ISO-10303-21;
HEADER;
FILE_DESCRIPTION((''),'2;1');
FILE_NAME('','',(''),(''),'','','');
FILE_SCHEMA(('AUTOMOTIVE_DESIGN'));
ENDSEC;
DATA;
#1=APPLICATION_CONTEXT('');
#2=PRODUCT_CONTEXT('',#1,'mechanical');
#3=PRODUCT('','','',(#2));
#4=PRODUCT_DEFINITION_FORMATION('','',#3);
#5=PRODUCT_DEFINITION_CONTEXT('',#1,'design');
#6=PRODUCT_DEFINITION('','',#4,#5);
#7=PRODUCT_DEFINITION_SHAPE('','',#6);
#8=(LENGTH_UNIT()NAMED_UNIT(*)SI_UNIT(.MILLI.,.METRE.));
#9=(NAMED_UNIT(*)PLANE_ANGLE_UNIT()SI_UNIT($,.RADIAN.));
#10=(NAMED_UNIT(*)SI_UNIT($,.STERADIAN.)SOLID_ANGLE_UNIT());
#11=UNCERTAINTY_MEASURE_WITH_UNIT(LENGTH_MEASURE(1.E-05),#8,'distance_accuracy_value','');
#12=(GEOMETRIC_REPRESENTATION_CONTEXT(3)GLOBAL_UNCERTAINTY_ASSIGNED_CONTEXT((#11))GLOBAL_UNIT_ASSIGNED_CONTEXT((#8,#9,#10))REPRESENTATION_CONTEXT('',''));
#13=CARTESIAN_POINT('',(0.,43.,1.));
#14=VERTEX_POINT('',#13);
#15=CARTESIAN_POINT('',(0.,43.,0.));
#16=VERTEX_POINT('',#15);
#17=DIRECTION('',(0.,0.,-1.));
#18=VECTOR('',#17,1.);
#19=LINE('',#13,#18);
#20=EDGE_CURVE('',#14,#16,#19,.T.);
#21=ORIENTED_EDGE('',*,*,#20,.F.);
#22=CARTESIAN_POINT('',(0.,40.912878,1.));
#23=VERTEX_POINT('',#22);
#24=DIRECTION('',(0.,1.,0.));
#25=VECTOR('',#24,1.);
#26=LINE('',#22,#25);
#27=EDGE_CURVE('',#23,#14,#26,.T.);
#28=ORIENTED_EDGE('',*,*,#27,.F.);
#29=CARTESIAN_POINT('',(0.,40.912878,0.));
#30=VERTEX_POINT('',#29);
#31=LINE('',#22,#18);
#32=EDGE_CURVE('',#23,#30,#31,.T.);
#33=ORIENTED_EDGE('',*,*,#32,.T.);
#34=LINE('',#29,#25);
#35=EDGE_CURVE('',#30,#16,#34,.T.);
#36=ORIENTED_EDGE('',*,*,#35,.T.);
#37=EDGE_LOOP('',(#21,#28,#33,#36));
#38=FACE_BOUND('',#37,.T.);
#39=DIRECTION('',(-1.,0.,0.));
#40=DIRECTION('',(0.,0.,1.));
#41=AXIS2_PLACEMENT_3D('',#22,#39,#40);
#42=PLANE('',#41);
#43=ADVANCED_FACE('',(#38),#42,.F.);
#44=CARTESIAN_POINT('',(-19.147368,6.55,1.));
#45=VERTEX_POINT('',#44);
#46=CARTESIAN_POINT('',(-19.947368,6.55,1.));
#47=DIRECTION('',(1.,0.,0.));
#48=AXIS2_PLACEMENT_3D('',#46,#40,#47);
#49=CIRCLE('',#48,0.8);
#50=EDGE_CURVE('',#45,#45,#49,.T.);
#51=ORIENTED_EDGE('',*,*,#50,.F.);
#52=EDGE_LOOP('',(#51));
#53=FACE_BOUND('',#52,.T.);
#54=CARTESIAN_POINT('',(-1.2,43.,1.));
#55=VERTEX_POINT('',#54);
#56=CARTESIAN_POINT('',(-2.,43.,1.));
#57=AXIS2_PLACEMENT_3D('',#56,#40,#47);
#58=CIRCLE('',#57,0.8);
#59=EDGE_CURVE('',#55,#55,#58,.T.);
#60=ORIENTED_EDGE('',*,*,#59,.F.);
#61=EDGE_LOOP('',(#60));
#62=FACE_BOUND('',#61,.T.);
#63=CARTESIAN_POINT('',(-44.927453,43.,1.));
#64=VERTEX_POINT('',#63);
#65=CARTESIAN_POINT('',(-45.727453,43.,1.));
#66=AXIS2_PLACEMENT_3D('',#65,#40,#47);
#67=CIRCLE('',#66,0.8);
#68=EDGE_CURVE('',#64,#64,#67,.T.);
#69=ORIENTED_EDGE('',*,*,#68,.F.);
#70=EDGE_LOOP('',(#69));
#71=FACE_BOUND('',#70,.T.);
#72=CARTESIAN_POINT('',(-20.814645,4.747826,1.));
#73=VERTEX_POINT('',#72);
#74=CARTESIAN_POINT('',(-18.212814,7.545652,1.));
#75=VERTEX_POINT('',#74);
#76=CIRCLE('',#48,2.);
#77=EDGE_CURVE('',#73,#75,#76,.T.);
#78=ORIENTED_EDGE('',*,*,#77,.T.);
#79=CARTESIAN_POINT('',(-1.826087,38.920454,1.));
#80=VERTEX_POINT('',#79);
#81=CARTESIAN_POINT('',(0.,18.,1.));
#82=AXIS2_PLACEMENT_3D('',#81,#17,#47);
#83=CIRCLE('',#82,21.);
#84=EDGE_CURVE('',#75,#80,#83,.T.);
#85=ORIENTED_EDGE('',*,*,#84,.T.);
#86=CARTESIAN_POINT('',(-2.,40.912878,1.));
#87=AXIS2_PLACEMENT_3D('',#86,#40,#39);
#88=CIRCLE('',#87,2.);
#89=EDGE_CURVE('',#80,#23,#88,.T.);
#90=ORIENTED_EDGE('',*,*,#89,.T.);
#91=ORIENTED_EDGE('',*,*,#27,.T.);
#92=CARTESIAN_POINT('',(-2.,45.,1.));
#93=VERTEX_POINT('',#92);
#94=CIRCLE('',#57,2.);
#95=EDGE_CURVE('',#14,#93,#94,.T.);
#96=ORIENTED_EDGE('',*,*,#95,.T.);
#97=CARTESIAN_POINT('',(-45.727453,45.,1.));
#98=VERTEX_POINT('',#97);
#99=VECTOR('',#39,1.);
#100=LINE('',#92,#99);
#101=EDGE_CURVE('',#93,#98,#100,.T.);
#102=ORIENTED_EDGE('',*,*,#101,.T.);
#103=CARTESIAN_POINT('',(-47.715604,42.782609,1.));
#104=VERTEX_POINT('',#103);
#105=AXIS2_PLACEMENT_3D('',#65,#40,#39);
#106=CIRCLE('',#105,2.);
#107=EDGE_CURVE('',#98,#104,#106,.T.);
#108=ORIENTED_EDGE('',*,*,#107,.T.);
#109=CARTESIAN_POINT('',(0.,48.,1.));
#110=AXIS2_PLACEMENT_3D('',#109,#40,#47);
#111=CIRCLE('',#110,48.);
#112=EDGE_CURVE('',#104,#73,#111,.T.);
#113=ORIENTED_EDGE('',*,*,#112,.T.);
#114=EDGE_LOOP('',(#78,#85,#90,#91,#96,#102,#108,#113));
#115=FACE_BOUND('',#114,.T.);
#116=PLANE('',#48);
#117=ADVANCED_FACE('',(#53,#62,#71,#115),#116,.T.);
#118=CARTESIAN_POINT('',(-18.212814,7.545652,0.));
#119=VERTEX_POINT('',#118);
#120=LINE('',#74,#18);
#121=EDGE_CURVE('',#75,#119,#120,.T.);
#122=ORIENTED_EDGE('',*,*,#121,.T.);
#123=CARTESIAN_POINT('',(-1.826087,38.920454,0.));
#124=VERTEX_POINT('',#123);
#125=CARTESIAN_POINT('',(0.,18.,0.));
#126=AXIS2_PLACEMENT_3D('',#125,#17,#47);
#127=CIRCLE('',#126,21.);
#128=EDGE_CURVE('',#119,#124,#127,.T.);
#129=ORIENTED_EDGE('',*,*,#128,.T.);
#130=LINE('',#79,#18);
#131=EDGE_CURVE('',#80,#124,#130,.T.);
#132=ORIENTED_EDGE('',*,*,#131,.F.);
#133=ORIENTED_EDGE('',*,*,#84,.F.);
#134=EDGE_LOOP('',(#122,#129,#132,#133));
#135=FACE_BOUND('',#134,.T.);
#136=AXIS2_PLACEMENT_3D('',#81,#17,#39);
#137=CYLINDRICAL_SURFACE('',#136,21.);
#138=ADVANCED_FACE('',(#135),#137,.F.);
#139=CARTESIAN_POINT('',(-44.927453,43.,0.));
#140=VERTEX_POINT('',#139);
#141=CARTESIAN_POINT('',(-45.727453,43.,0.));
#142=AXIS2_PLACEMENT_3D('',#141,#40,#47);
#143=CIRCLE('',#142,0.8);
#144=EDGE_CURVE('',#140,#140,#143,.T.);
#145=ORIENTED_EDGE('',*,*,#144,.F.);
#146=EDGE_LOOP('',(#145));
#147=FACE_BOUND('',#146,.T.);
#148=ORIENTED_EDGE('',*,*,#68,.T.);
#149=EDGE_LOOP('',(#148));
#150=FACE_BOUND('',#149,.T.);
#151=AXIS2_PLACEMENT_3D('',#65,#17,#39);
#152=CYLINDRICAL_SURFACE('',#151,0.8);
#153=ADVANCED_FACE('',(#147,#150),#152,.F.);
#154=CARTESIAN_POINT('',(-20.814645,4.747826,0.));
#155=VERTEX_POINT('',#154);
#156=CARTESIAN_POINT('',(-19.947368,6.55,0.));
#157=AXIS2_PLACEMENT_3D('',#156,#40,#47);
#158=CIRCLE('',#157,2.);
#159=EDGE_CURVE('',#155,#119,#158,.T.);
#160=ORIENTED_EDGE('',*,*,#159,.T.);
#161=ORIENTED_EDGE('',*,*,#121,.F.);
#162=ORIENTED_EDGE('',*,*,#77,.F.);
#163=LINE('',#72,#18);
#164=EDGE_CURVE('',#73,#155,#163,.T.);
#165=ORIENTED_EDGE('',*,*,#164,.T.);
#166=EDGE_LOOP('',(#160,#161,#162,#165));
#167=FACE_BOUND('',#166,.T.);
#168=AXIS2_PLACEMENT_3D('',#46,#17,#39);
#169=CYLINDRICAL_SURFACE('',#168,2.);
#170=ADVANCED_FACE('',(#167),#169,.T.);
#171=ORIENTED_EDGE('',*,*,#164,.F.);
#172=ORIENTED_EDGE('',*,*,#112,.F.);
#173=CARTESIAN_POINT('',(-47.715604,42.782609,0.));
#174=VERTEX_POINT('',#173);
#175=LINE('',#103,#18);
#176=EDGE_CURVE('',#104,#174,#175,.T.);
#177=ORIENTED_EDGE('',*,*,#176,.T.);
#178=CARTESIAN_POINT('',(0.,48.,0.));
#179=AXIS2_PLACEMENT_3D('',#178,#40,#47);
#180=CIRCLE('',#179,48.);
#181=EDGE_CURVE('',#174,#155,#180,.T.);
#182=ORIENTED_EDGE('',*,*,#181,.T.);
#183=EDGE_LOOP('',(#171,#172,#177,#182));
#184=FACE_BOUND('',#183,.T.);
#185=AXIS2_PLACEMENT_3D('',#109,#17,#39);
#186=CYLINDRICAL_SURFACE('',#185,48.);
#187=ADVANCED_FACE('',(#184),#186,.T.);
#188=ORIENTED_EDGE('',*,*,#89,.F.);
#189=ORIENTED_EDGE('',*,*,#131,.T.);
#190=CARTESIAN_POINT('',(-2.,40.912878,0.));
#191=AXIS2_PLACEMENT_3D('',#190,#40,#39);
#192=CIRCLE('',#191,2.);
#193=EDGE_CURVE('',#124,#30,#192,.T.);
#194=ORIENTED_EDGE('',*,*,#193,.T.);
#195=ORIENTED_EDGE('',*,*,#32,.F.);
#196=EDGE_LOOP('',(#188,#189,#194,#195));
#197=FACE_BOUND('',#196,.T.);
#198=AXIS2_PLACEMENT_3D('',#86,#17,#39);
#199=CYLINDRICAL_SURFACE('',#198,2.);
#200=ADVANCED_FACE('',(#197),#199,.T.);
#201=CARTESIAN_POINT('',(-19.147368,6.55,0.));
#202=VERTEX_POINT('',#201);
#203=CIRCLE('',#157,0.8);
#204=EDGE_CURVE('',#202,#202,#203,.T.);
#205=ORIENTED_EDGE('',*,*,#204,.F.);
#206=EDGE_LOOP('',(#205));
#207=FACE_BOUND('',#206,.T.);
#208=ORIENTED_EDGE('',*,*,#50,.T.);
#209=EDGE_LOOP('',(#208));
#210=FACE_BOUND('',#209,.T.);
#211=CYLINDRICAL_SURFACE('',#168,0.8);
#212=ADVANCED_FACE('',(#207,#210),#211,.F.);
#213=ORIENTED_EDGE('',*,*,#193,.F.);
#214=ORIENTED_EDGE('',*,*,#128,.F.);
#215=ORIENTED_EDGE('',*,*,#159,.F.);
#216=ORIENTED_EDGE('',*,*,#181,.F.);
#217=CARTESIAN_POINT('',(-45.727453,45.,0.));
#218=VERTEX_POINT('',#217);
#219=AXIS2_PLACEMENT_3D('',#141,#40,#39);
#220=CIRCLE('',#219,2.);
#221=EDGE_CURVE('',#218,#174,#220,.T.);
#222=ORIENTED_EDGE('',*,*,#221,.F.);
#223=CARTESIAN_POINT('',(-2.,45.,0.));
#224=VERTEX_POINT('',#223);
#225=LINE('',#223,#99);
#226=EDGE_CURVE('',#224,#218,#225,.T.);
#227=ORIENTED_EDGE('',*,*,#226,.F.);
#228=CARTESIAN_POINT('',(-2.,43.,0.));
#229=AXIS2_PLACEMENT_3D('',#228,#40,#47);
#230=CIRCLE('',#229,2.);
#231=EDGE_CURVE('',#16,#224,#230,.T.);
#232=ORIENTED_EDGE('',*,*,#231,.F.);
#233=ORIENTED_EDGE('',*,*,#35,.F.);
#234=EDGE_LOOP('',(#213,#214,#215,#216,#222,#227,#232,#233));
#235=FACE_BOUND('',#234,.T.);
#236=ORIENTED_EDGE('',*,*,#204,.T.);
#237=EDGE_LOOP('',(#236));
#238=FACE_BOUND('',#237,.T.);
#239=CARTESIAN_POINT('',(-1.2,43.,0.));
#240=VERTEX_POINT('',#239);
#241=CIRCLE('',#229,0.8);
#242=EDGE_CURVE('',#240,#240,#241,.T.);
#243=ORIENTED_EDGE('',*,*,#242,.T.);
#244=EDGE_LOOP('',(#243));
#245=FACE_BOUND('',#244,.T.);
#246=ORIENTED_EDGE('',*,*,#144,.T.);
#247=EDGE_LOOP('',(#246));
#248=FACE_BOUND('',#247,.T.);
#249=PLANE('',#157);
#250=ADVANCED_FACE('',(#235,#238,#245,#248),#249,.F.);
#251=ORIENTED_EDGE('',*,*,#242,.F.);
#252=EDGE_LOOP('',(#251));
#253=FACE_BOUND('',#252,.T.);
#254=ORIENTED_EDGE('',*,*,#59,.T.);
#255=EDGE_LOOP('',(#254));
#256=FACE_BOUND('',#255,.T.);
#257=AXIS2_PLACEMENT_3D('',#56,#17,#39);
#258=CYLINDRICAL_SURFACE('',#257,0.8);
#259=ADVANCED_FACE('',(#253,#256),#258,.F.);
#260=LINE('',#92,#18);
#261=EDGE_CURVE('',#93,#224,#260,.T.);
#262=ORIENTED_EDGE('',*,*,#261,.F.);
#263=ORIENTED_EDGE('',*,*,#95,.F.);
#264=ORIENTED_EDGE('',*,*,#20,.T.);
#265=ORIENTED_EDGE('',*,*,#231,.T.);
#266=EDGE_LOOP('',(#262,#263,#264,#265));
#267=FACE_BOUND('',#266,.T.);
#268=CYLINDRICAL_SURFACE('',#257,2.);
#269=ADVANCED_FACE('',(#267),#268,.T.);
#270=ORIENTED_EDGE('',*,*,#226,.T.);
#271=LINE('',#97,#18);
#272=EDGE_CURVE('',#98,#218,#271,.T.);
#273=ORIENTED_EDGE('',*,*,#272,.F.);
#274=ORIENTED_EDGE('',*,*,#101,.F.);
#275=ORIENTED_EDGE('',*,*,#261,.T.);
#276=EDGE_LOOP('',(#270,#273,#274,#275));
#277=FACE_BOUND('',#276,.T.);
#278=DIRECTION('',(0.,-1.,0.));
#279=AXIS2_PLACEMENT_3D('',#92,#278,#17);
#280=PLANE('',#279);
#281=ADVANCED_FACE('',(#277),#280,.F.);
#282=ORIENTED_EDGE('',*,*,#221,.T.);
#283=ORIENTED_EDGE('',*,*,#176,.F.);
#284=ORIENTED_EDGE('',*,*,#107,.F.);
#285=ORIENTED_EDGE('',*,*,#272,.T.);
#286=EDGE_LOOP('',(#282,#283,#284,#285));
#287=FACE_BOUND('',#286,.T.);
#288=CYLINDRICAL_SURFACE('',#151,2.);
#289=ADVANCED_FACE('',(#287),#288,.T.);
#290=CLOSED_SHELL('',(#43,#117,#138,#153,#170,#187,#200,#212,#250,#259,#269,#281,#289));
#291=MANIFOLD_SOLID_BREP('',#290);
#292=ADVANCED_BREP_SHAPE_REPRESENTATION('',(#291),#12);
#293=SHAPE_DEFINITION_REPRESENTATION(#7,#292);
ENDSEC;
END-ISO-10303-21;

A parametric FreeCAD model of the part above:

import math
import FreeCAD as App
import Part
import Sketcher
from FreeCAD import Vector
Q = App.Units.Quantity

doc = App.newDocument("Part")
params = doc.addObject("Spreadsheet::Sheet", "Params")
for row, (alias, value) in enumerate([
    ("sketch1_radius", "2 mm"),
    ("sketch1_radius2", "48 mm"),
    ("sketch1_radius3", "21 mm"),
    ("sketch1_diameter", "1.6 mm"),
    ("pad1_length", "1 mm"),
], start=1):
    params.set(f"A{row}", alias)
    params.set(f"B{row}", "=" + value)
    params.setAlias(f"B{row}", alias)

body = doc.addObject("PartDesign::Body", "Body")

sketch1 = body.newObject("Sketcher::SketchObject", "Sketch")
sketch1.AttachmentSupport = (doc.getObject("XY_Plane"), [""])
sketch1.MapMode = "FlatFace"
sketch1.addGeometry([
    Part.LineSegment(Vector(0, 40.9, 0), Vector(0, 43, 0)),
    Part.ArcOfCircle(Part.Circle(Vector(-2, 43, 0), Vector(0, 0, 1), 2), math.radians(0), math.radians(90)),
    Part.LineSegment(Vector(-2, 45, 0), Vector(-45.7, 45, 0)),
    Part.ArcOfCircle(Part.Circle(Vector(-45.7, 43, 0), Vector(0, 0, 1), 2), math.radians(90), math.radians(186)),
    Part.ArcOfCircle(Part.Circle(Vector(0, 48, 0), Vector(0, 0, 1), 48), math.radians(-174), math.radians(-116)),
    Part.ArcOfCircle(Part.Circle(Vector(-19.9, 6.5, 0), Vector(0, 0, 1), 2), math.radians(-116), math.radians(30)),
    Part.ArcOfCircle(Part.Circle(Vector(0, 18, 0), Vector(0, 0, 1), 21), math.radians(95), math.radians(210)),
    Part.ArcOfCircle(Part.Circle(Vector(-2, 40.9, 0), Vector(0, 0, 1), 2), math.radians(-85), math.radians(0)),
    Part.Circle(Vector(-19.9, 6.5, 0), Vector(0, 0, 1), 0.8),
    Part.Circle(Vector(-45.7, 43, 0), Vector(0, 0, 1), 0.8),
    Part.Circle(Vector(-2, 43, 0), Vector(0, 0, 1), 0.8),
], False)
sketch1.addConstraint([
    Sketcher.Constraint("Tangent", 0, 2, 1, 1),
    Sketcher.Constraint("Tangent", 1, 2, 2, 1),
    Sketcher.Constraint("Tangent", 2, 2, 3, 1),
    Sketcher.Constraint("Tangent", 3, 2, 4, 1),
    Sketcher.Constraint("Tangent", 4, 2, 5, 1),
    Sketcher.Constraint("Tangent", 5, 2, 6, 2),
    Sketcher.Constraint("Tangent", 6, 1, 7, 1),
    Sketcher.Constraint("Tangent", 7, 2, 0, 1),
    Sketcher.Constraint("Vertical", 0),
    Sketcher.Constraint("Horizontal", 2),
    Sketcher.Constraint("Coincident", 8, 3, 5, 3),
    Sketcher.Constraint("Coincident", 9, 3, 3, 3),
    Sketcher.Constraint("Coincident", 10, 3, 1, 3),
    Sketcher.Constraint("Equal", 1, 3),
    Sketcher.Constraint("Equal", 3, 5),
    Sketcher.Constraint("Equal", 5, 7),
    Sketcher.Constraint("Equal", 8, 9),
    Sketcher.Constraint("Equal", 9, 10),
    Sketcher.Constraint("PointOnObject", 4, 3, -2),
    Sketcher.Constraint("PointOnObject", 6, 3, -2),
    Sketcher.Constraint("PointOnObject", 0, 2, -2),
    Sketcher.Constraint("Radius", 1, Q("2 mm")),
    Sketcher.Constraint("Radius", 4, Q("48 mm")),
    Sketcher.Constraint("Radius", 6, Q("21 mm")),
    Sketcher.Constraint("Diameter", 8, Q("1.6 mm")),
    Sketcher.Constraint("DistanceY", -1, 1, 1, 3, Q("43 mm")),
    Sketcher.Constraint("DistanceY", -1, 1, 4, 3, Q("48 mm")),
    Sketcher.Constraint("DistanceY", -1, 1, 6, 3, Q("18 mm")),
])
sketch1.setExpression("Constraints[21]", "Params.sketch1_radius")
sketch1.setExpression("Constraints[22]", "Params.sketch1_radius2")
sketch1.setExpression("Constraints[23]", "Params.sketch1_radius3")
sketch1.setExpression("Constraints[24]", "Params.sketch1_diameter")
pad1 = body.newObject("PartDesign::Pad", "Pad")
pad1.Profile = sketch1
pad1.setExpression("Length", "Params.pad1_length")

doc.recompute()
